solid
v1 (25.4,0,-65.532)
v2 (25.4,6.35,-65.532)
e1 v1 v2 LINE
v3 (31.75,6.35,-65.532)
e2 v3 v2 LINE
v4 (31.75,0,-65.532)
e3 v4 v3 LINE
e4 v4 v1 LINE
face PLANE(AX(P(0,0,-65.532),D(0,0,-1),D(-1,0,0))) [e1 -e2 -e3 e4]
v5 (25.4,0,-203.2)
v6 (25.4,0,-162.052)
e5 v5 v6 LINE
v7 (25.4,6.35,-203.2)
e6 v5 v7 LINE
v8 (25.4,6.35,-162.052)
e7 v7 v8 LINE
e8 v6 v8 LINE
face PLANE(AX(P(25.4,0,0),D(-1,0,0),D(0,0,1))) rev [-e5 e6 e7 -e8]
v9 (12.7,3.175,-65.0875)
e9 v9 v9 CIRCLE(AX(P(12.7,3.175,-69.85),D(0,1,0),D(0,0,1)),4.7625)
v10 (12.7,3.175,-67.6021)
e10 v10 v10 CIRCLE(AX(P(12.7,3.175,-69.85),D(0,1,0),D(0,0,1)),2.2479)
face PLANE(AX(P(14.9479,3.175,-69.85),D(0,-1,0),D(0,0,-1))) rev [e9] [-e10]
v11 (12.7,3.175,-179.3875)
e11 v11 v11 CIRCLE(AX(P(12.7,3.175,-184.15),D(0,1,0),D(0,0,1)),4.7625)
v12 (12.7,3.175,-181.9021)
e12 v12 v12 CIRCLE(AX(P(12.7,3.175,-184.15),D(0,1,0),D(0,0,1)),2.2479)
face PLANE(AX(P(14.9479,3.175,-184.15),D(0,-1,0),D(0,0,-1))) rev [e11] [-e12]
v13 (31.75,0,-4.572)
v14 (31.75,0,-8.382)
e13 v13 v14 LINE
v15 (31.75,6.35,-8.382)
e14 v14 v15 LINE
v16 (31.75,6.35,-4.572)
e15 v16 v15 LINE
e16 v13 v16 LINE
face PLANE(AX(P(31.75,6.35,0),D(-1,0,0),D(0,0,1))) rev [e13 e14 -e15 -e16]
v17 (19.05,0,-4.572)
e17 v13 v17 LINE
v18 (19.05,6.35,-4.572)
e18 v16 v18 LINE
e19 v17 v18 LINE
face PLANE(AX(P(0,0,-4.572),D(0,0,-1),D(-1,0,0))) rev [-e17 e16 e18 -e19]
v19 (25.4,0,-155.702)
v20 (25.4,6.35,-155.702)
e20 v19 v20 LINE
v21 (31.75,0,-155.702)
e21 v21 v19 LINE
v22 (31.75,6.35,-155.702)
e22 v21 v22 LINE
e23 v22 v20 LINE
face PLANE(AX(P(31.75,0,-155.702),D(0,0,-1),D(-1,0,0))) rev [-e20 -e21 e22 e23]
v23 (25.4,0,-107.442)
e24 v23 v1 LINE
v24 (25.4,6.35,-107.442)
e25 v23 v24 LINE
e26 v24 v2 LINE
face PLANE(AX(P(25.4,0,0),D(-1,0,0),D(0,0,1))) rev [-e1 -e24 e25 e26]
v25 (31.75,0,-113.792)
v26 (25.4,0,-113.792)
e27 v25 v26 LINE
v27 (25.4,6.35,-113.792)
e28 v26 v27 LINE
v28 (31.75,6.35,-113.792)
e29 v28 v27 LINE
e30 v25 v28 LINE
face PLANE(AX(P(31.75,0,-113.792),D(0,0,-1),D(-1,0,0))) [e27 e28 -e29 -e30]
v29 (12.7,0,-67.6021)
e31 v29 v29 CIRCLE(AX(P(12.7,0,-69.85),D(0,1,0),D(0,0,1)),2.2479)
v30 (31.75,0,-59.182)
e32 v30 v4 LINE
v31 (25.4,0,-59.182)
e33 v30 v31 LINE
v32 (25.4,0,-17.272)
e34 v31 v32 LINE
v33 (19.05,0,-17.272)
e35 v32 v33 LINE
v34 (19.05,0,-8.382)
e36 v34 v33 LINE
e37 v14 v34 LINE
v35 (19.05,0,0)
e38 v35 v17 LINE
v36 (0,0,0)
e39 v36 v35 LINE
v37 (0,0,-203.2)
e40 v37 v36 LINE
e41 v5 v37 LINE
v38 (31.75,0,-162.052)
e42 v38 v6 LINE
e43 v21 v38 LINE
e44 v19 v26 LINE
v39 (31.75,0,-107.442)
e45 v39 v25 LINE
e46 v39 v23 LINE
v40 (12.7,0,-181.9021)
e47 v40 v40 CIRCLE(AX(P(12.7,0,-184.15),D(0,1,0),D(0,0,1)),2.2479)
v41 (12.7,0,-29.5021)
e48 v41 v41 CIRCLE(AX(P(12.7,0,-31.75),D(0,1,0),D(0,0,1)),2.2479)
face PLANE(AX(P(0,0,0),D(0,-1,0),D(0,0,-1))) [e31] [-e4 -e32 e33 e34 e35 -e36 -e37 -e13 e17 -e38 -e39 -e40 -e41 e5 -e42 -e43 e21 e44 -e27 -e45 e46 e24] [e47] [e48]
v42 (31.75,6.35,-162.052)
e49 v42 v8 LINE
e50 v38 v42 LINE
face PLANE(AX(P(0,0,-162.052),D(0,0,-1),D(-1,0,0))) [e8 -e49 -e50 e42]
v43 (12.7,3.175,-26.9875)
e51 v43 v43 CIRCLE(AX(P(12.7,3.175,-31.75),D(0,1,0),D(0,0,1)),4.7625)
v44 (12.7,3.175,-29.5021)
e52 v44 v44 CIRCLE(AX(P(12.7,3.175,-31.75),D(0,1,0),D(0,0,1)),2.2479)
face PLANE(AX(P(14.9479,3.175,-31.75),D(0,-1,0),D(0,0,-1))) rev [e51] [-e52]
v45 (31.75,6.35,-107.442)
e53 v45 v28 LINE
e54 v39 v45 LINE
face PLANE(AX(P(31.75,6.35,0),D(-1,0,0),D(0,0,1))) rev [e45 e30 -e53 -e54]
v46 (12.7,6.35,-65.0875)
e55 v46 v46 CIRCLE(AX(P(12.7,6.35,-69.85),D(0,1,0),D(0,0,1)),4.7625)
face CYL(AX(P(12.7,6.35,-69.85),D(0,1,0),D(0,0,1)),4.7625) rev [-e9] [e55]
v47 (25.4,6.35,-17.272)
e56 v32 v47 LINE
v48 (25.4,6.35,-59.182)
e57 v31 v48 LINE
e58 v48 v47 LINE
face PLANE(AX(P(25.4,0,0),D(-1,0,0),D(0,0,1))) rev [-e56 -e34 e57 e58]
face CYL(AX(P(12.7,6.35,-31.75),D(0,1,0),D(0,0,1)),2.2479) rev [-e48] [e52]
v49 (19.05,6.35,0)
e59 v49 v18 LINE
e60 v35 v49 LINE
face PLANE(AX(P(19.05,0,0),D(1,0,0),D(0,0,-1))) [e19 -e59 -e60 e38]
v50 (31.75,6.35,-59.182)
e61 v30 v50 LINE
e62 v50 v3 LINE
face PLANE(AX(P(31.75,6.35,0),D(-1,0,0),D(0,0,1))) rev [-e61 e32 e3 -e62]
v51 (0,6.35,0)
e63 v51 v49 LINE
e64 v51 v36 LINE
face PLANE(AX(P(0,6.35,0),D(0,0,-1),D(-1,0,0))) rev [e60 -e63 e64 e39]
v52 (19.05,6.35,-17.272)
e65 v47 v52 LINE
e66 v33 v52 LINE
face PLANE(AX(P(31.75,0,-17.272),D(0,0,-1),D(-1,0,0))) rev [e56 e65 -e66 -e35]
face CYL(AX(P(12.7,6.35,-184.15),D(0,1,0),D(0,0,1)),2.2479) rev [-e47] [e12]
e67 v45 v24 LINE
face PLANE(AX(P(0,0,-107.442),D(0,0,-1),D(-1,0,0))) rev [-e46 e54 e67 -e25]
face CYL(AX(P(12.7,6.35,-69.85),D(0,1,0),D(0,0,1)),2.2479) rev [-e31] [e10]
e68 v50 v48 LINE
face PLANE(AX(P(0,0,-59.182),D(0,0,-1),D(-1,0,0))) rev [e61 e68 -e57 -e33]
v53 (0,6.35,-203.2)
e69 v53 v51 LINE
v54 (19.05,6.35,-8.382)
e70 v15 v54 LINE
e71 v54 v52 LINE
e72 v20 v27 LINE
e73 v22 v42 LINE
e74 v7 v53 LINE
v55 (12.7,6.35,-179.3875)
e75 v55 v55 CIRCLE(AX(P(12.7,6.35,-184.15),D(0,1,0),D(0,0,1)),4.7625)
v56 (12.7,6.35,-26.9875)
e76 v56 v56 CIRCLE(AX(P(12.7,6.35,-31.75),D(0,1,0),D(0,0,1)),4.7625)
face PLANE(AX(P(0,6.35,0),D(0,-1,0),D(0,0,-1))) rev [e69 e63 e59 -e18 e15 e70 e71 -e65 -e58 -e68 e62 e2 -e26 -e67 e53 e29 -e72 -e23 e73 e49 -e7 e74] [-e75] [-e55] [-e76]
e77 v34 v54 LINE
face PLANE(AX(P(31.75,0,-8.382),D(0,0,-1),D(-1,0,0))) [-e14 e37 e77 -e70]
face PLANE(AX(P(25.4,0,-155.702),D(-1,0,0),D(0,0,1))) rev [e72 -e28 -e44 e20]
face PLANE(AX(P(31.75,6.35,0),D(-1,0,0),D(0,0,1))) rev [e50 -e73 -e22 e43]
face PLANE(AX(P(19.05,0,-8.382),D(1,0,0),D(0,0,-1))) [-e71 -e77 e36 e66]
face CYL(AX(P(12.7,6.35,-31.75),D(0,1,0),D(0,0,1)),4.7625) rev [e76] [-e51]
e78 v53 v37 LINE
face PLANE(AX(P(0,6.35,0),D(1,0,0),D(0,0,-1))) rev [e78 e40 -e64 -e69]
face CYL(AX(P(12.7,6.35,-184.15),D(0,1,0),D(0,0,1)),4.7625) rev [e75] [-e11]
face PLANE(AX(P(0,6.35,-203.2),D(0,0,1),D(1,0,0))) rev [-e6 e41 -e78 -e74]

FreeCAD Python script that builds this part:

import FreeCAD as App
import Part
import Sketcher
from FreeCAD import Vector
Q = App.Units.Quantity

doc = App.newDocument("Part")
body = doc.addObject("PartDesign::Body", "Body")

sketch1 = doc.addObject("Sketcher::SketchObject", "Sketch")
body.addObject(sketch1)
sketch1.AttachmentSupport = (doc.XZ_Plane, [""])
sketch1.MapMode = "FlatFace"
sketch1.addGeometry([
    Part.LineSegment(Vector(0, -203.2, 0), Vector(0, 0, 0)),
    Part.LineSegment(Vector(0, 0, 0), Vector(31.75, 0, 0)),
    Part.LineSegment(Vector(31.75, 0, 0), Vector(31.75, -203.2, 0)),
    Part.LineSegment(Vector(31.75, -203.2, 0), Vector(0, -203.2, 0)),
], False)
sketch1.addConstraint([
    Sketcher.Constraint("Coincident", 0, 2, 1, 1),
    Sketcher.Constraint("Coincident", 1, 2, 2, 1),
    Sketcher.Constraint("Coincident", 2, 2, 3, 1),
    Sketcher.Constraint("Coincident", 3, 2, 0, 1),
    Sketcher.Constraint("Vertical", 0),
    Sketcher.Constraint("Horizontal", 1),
    Sketcher.Constraint("Vertical", 2),
    Sketcher.Constraint("Horizontal", 3),
    Sketcher.Constraint("Coincident", 0, 2, -1, 1),
    Sketcher.Constraint("DistanceY", 0, 1, 0, 2, Q("8 in")),
    Sketcher.Constraint("DistanceX", 1, 1, 1, 2, Q("1.25 in")),
])
pad1 = doc.addObject("PartDesign::Pad", "Pad")
body.addObject(pad1)
pad1.Profile = sketch1
pad1.Length = Q("0.25 in")
pad1.Reversed = True

sketch2 = doc.addObject("Sketcher::SketchObject", "Sketch001")
body.addObject(sketch2)
sketch2.AttachmentSupport = (doc.XZ_Plane, [""])
sketch2.MapMode = "FlatFace"
sketch2.AttachmentOffset = App.Placement(Vector(0, 0, -0.25 * 25.4), App.Rotation())
sketch2.addGeometry([
    Part.LineSegment(Vector(25.4, -203.2, 0), Vector(25.4, -162.052, 0)),
    Part.LineSegment(Vector(25.4, -162.052, 0), Vector(31.75, -162.052, 0)),
    Part.LineSegment(Vector(31.75, -162.052, 0), Vector(31.75, -203.2, 0)),
    Part.LineSegment(Vector(31.75, -203.2, 0), Vector(25.4, -203.2, 0)),
    Part.LineSegment(Vector(25.4, -155.702, 0), Vector(25.4, -113.792, 0)),
    Part.LineSegment(Vector(25.4, -113.792, 0), Vector(31.75, -113.792, 0)),
    Part.LineSegment(Vector(31.75, -113.792, 0), Vector(31.75, -155.702, 0)),
    Part.LineSegment(Vector(31.75, -155.702, 0), Vector(25.4, -155.702, 0)),
    Part.LineSegment(Vector(31.75, -59.182, 0), Vector(25.4, -59.182, 0)),
    Part.LineSegment(Vector(25.4, -59.182, 0), Vector(25.4, -17.272, 0)),
    Part.LineSegment(Vector(25.4, -17.272, 0), Vector(19.05, -17.272, 0)),
    Part.LineSegment(Vector(19.05, -17.272, 0), Vector(19.05, -8.382, 0)),
    Part.LineSegment(Vector(19.05, -8.382, 0), Vector(31.75, -8.382, 0)),
    Part.LineSegment(Vector(31.75, -8.382, 0), Vector(31.75, -59.182, 0)),
    Part.LineSegment(Vector(25.4, -107.442, 0), Vector(25.4, -65.532, 0)),
    Part.LineSegment(Vector(25.4, -65.532, 0), Vector(31.75, -65.532, 0)),
    Part.LineSegment(Vector(31.75, -65.532, 0), Vector(31.75, -107.442, 0)),
    Part.LineSegment(Vector(31.75, -107.442, 0), Vector(25.4, -107.442, 0)),
    Part.LineSegment(Vector(19.05, -4.572, 0), Vector(19.05, 0, 0)),
    Part.LineSegment(Vector(19.05, 0, 0), Vector(31.75, 0, 0)),
    Part.LineSegment(Vector(31.75, 0, 0), Vector(31.75, -4.572, 0)),
    Part.LineSegment(Vector(31.75, -4.572, 0), Vector(19.05, -4.572, 0)),
], False)
sketch2.addConstraint([
    Sketcher.Constraint("Coincident", 0, 2, 1, 1),
    Sketcher.Constraint("Coincident", 1, 2, 2, 1),
    Sketcher.Constraint("Coincident", 2, 2, 3, 1),
    Sketcher.Constraint("Coincident", 3, 2, 0, 1),
    Sketcher.Constraint("Coincident", 4, 2, 5, 1),
    Sketcher.Constraint("Coincident", 5, 2, 6, 1),
    Sketcher.Constraint("Coincident", 6, 2, 7, 1),
    Sketcher.Constraint("Coincident", 7, 2, 4, 1),
    Sketcher.Constraint("Coincident", 8, 2, 9, 1),
    Sketcher.Constraint("Coincident", 9, 2, 10, 1),
    Sketcher.Constraint("Coincident", 10, 2, 11, 1),
    Sketcher.Constraint("Coincident", 11, 2, 12, 1),
    Sketcher.Constraint("Coincident", 12, 2, 13, 1),
    Sketcher.Constraint("Coincident", 13, 2, 8, 1),
    Sketcher.Constraint("Coincident", 14, 2, 15, 1),
    Sketcher.Constraint("Coincident", 15, 2, 16, 1),
    Sketcher.Constraint("Coincident", 16, 2, 17, 1),
    Sketcher.Constraint("Coincident", 17, 2, 14, 1),
    Sketcher.Constraint("Coincident", 18, 2, 19, 1),
    Sketcher.Constraint("Coincident", 19, 2, 20, 1),
    Sketcher.Constraint("Coincident", 20, 2, 21, 1),
    Sketcher.Constraint("Coincident", 21, 2, 18, 1),
    Sketcher.Constraint("Vertical", 0),
    Sketcher.Constraint("Horizontal", 1),
    Sketcher.Constraint("Vertical", 2),
    Sketcher.Constraint("Horizontal", 3),
    Sketcher.Constraint("Vertical", 4),
    Sketcher.Constraint("Horizontal", 5),
    Sketcher.Constraint("Vertical", 6),
    Sketcher.Constraint("Horizontal", 7),
    Sketcher.Constraint("Horizontal", 8),
    Sketcher.Constraint("Vertical", 9),
    Sketcher.Constraint("Horizontal", 10),
    Sketcher.Constraint("Vertical", 11),
    Sketcher.Constraint("Horizontal", 12),
    Sketcher.Constraint("Vertical", 13),
    Sketcher.Constraint("Vertical", 14),
    Sketcher.Constraint("Horizontal", 15),
    Sketcher.Constraint("Vertical", 16),
    Sketcher.Constraint("Horizontal", 17),
    Sketcher.Constraint("Vertical", 18),
    Sketcher.Constraint("Horizontal", 19),
    Sketcher.Constraint("Vertical", 20),
    Sketcher.Constraint("Horizontal", 21),
    Sketcher.Constraint("PointOnObject", 18, 2, -1),
    Sketcher.Constraint("Vertical", 3, 2, 4, 2),
    Sketcher.Constraint("Vertical", 2, 2, 5, 2),
    Sketcher.Constraint("Vertical", 7, 2, 8, 2),
    Sketcher.Constraint("Vertical", 6, 2, 12, 2),
    Sketcher.Constraint("Vertical", 9, 2, 14, 2),
    Sketcher.Constraint("Vertical", 13, 2, 15, 2),
    Sketcher.Constraint("Vertical", 11, 2, 18, 2),
    Sketcher.Constraint("Vertical", 16, 2, 19, 2),
    Sketcher.Constraint("Equal", 8, 10),
    Sketcher.Constraint("Equal", 6, 9),
    Sketcher.Constraint("Equal", 9, 14),
    Sketcher.Constraint("DistanceY", 13, 2, 13, 1, Q("2 in")),
    Sketcher.Constraint("DistanceX", 12, 1, 12, 2, Q("0.5 in")),
    Sketcher.Constraint("DistanceX", -1, 1, 0, 2, Q("1 in")),
    Sketcher.Constraint("DistanceY", 2, 2, -1, 1, Q("8 in")),
    Sketcher.Constraint("DistanceY", 0, 1, 0, 2, Q("1.62 in")),
    Sketcher.Constraint("DistanceY", 4, 1, 4, 2, Q("1.65 in")),
    Sketcher.Constraint("DistanceY", 18, 1, 18, 2, Q("0.18 in")),
    Sketcher.Constraint("DistanceY", 0, 2, 4, 2, Q("1.9 in")),
    Sketcher.Constraint("DistanceY", 7, 2, 8, 2, Q("3.8 in")),
    Sketcher.Constraint("DistanceY", 14, 2, 9, 2, Q("1.9 in")),
])
pocket1 = doc.addObject("PartDesign::Pocket", "Pocket")
body.addObject(pocket1)
pocket1.Profile = sketch2
pocket1.Type = "ThroughAll"
pocket1.Reversed = True

sketch3 = doc.addObject("Sketcher::SketchObject", "Sketch002")
body.addObject(sketch3)
sketch3.AttachmentSupport = (doc.XZ_Plane, [""])
sketch3.MapMode = "FlatFace"
sketch3.AttachmentOffset = App.Placement(Vector(0, 0, -0.25 * 25.4), App.Rotation())
sketch3.addGeometry([
    Part.Circle(Vector(12.7, -31.75, 0), Vector(0, 0, 1), 2.2479),
    Part.Circle(Vector(12.7, -69.85, 0), Vector(0, 0, 1), 2.2479),
    Part.Circle(Vector(12.7, -184.15, 0), Vector(0, 0, 1), 2.2479),
], False)
sketch3.addConstraint([
    Sketcher.Constraint("Equal", 0, 1),
    Sketcher.Constraint("Equal", 1, 2),
    Sketcher.Constraint("Vertical", 0, 3, 1, 3),
    Sketcher.Constraint("Vertical", 1, 3, 2, 3),
    Sketcher.Constraint("Diameter", 0, Q("0.177 in")),
    Sketcher.Constraint("DistanceY", 2, 3, 0, 3, Q("6 in")),
    Sketcher.Constraint("DistanceX", -1, 1, 0, 3, Q("0.5 in")),
    Sketcher.Constraint("DistanceY", 1, 3, 0, 3, Q("1.5 in")),
    Sketcher.Constraint("DistanceY", 0, 3, -1, 1, Q("1.25 in")),
])
doc.recompute()
hole = doc.addObject("PartDesign::Hole", "Hole")
body.addObject(hole)
hole.Profile = sketch3
hole.ThreadType = "None"
hole.Diameter = Q("0.177 in")
hole.DepthType = "ThroughAll"
hole.HoleCutType = "Counterbore"
hole.HoleCutDiameter = Q("0.375 in")
hole.HoleCutDepth = Q("0.125 in")
hole.Reversed = True

doc.recompute()
